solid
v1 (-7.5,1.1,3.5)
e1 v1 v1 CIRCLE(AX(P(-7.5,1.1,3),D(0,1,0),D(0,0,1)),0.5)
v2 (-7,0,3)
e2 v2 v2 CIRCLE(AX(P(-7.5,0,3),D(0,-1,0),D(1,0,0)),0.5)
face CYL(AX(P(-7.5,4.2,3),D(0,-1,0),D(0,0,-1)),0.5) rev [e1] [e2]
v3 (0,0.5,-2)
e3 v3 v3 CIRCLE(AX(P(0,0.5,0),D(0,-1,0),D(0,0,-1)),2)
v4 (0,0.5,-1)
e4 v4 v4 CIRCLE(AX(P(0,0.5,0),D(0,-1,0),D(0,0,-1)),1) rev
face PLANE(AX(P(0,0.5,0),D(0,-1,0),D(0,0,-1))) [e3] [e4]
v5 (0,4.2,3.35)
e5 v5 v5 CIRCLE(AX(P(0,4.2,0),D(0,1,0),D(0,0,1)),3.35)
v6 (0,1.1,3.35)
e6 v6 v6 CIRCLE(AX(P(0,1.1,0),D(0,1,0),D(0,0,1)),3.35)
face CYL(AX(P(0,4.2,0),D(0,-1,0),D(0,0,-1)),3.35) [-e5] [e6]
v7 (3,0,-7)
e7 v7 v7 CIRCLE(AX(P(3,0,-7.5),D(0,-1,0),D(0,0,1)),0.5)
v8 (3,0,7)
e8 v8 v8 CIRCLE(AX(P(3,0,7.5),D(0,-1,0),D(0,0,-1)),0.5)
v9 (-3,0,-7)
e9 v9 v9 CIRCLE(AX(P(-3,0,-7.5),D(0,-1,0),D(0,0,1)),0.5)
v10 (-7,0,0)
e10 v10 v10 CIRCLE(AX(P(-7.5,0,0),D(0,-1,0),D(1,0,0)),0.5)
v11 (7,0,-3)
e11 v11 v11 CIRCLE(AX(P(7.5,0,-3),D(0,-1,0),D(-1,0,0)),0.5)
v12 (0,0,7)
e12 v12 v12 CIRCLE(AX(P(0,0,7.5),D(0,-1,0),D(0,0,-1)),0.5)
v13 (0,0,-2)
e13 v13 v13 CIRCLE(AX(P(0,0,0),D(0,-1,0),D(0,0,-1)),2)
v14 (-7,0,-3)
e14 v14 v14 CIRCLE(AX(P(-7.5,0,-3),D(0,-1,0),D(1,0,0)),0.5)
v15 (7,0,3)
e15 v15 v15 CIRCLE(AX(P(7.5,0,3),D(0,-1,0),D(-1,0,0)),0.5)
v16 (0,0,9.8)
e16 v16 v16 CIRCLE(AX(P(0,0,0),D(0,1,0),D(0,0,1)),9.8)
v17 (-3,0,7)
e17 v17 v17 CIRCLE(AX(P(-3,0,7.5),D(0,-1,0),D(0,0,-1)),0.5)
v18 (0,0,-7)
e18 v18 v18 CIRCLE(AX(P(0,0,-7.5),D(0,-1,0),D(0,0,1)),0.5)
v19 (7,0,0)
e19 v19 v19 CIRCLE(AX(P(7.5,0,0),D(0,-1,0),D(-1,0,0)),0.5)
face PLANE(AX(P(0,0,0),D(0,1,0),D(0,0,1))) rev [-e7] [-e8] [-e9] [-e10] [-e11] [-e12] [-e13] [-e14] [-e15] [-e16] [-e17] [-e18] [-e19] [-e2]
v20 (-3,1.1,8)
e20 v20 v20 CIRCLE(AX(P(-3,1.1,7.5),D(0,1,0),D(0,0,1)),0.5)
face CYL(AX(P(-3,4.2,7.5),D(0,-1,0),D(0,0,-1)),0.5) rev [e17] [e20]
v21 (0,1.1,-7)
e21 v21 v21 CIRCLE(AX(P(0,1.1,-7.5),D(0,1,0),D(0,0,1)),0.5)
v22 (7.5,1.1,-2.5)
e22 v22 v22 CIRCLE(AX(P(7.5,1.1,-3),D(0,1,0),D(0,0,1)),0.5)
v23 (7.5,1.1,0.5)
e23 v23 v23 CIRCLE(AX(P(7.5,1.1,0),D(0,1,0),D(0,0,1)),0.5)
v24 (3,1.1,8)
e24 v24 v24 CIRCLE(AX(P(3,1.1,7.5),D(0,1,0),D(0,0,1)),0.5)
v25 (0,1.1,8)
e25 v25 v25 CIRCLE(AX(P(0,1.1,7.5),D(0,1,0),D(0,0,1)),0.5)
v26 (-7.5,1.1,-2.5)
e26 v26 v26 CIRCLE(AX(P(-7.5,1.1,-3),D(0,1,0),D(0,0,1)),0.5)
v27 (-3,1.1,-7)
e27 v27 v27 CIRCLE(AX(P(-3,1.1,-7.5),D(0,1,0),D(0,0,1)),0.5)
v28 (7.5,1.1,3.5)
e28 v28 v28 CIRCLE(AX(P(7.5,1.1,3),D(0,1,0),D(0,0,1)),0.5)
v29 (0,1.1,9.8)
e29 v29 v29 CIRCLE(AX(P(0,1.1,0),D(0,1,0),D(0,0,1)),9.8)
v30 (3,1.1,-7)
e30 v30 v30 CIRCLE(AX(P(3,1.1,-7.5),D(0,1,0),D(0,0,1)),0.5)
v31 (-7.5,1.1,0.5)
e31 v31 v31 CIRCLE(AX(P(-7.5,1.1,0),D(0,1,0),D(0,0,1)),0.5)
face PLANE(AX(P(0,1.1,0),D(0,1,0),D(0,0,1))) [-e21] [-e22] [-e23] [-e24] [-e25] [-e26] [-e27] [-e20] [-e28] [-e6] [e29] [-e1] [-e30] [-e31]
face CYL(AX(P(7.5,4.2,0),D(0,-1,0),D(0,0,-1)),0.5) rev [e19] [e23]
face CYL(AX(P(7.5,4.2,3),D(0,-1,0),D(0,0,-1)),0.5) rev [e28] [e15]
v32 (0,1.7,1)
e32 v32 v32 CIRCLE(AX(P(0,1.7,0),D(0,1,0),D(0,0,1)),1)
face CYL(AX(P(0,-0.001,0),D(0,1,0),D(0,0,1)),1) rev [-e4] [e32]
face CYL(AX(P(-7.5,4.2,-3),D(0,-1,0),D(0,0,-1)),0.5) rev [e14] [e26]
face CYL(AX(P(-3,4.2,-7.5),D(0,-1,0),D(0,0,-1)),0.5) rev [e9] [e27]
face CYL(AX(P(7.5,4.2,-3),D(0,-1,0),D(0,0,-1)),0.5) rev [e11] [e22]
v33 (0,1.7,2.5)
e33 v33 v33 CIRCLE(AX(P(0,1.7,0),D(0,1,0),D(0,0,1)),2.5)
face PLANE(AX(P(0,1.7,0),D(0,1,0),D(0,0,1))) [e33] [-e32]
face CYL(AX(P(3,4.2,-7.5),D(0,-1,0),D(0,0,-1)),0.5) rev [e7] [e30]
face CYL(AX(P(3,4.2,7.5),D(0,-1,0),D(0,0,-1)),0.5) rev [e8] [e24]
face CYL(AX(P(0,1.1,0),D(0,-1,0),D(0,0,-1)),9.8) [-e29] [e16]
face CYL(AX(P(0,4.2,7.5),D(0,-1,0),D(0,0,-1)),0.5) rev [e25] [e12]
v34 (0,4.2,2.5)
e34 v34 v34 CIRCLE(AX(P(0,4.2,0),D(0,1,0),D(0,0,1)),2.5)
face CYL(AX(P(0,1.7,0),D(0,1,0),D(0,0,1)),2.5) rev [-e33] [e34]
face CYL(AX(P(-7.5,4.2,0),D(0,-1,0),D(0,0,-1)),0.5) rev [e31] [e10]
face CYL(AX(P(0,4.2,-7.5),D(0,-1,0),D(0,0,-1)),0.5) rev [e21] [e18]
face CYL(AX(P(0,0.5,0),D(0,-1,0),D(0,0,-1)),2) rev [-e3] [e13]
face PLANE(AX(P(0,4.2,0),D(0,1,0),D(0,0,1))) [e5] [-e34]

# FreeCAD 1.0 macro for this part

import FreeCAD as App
import Part
import Sketcher
from FreeCAD import Vector

doc = App.newDocument("Part")
body = doc.addObject("PartDesign::Body", "Body")

# Sketch on XZ plane
sketch1 = body.newObject("Sketcher::SketchObject", "Sketch")
sketch1.AttachmentSupport = (doc.getObject("XZ_Plane"), [""])
sketch1.MapMode = "FlatFace"
sketch1.addGeometry(Part.Circle(Vector(0, 0, 0), Vector(0, 0, 1), 10), False)
sketch1.addConstraint(Sketcher.Constraint("Coincident", 0, 3, -1, 1))
sketch1.addConstraint(Sketcher.Constraint("Diameter", 0, 19.6))
pad1 = body.newObject("PartDesign::Pad", "Pad")
pad1.Profile = sketch1
pad1.Length = 1.1
pad1.Reversed = True

# Sketch on XZ plane
sketch2 = body.newObject("Sketcher::SketchObject", "Sketch001")
sketch2.AttachmentSupport = (doc.getObject("XZ_Plane"), [""])
sketch2.MapMode = "FlatFace"
sketch2.AttachmentOffset = App.Placement(Vector(0, 0, -1.1), App.Rotation())
sketch2.addGeometry(Part.Circle(Vector(0, 0, 0), Vector(0, 0, 1), 3.4), False)
sketch2.addConstraint(Sketcher.Constraint("Coincident", 0, 3, -1, 1))
sketch2.addConstraint(Sketcher.Constraint("Diameter", 0, 6.7))
pad2 = body.newObject("PartDesign::Pad", "Pad001")
pad2.Profile = sketch2
pad2.Length = 3.1
pad2.Reversed = True

# Sketch on XZ plane
sketch3 = body.newObject("Sketcher::SketchObject", "Sketch002")
sketch3.AttachmentSupport = (doc.getObject("XZ_Plane"), [""])
sketch3.MapMode = "FlatFace"
sketch3.AttachmentOffset = App.Placement(Vector(0, 0, -4.2), App.Rotation())
sketch3.addGeometry(Part.Circle(Vector(0, 0, 0), Vector(0, 0, 1), 2.5), False)
sketch3.addConstraint(Sketcher.Constraint("Coincident", 0, 3, -1, 1))
sketch3.addConstraint(Sketcher.Constraint("Diameter", 0, 5.0))
pocket1 = body.newObject("PartDesign::Pocket", "Pocket")
pocket1.Profile = sketch3
pocket1.Length = 2.5
pocket1.Reversed = True

# Sketch on XZ plane
sketch4 = body.newObject("Sketcher::SketchObject", "Sketch003")
sketch4.AttachmentSupport = (doc.getObject("XZ_Plane"), [""])
sketch4.MapMode = "FlatFace"
sketch4.AttachmentOffset = App.Placement(Vector(0, 0, -1.7), App.Rotation())
sketch4.addGeometry(Part.Circle(Vector(0, 0, 0), Vector(0, 0, 1), 1), False)
sketch4.addConstraint(Sketcher.Constraint("Coincident", 0, 3, -1, 1))
sketch4.addConstraint(Sketcher.Constraint("Diameter", 0, 2.0))
pocket2 = body.newObject("PartDesign::Pocket", "Pocket001")
pocket2.Profile = sketch4
pocket2.Type = "UpToFirst"
pocket2.Reversed = True

# Sketch on XZ plane
sketch5 = body.newObject("Sketcher::SketchObject", "Sketch004")
sketch5.AttachmentSupport = (doc.getObject("XZ_Plane"), [""])
sketch5.MapMode = "FlatFace"
sketch5.addGeometry(Part.Circle(Vector(0, 0, 0), Vector(0, 0, 1), 2), False)
sketch5.addConstraint(Sketcher.Constraint("Coincident", 0, 3, -1, 1))
sketch5.addConstraint(Sketcher.Constraint("Diameter", 0, 4.0))
pocket3 = body.newObject("PartDesign::Pocket", "Pocket002")
pocket3.Profile = sketch5
pocket3.Length = 0.5

# Sketch on XZ plane
sketch6 = body.newObject("Sketcher::SketchObject", "Sketch005")
sketch6.AttachmentSupport = (doc.getObject("XZ_Plane"), [""])
sketch6.MapMode = "FlatFace"
sketch6.addGeometry(Part.Circle(Vector(-3, 7.5, 0), Vector(0, 0, 1), 0.5), False)
sketch6.addGeometry(Part.Circle(Vector(0, 7.5, 0), Vector(0, 0, 1), 0.5), False)
sketch6.addGeometry(Part.Circle(Vector(3, 7.5, 0), Vector(0, 0, 1), 0.5), False)
sketch6.addConstraint(Sketcher.Constraint("Equal", 0, 1))
sketch6.addConstraint(Sketcher.Constraint("Equal", 1, 2))
sketch6.addConstraint(Sketcher.Constraint("Symmetric", 0, 3, 2, 3, -2))
sketch6.addConstraint(Sketcher.Constraint("PointOnObject", 1, 3, -2))
sketch6.addConstraint(Sketcher.Constraint("Horizontal", 0, 3, 1, 3))
sketch6.addConstraint(Sketcher.Constraint("Diameter", 0, 1.0))
sketch6.addConstraint(Sketcher.Constraint("DistanceX", 0, 3, -1, 1, 3.0))
sketch6.addConstraint(Sketcher.Constraint("DistanceY", -1, 1, 0, 3, 7.5))
pocket4 = body.newObject("PartDesign::Pocket", "Pocket003")
pocket4.Profile = sketch6
pocket4.Type = "ThroughAll"
doc.recompute()

polarpattern = body.newObject("PartDesign::PolarPattern", "PolarPattern")
polarpattern.Originals = [pocket4]
polarpattern.Axis = (doc.getObject("Y_Axis"), [""])
polarpattern.Angle = 360
polarpattern.Occurrences = 4
body.Tip = polarpattern

doc.recompute()
